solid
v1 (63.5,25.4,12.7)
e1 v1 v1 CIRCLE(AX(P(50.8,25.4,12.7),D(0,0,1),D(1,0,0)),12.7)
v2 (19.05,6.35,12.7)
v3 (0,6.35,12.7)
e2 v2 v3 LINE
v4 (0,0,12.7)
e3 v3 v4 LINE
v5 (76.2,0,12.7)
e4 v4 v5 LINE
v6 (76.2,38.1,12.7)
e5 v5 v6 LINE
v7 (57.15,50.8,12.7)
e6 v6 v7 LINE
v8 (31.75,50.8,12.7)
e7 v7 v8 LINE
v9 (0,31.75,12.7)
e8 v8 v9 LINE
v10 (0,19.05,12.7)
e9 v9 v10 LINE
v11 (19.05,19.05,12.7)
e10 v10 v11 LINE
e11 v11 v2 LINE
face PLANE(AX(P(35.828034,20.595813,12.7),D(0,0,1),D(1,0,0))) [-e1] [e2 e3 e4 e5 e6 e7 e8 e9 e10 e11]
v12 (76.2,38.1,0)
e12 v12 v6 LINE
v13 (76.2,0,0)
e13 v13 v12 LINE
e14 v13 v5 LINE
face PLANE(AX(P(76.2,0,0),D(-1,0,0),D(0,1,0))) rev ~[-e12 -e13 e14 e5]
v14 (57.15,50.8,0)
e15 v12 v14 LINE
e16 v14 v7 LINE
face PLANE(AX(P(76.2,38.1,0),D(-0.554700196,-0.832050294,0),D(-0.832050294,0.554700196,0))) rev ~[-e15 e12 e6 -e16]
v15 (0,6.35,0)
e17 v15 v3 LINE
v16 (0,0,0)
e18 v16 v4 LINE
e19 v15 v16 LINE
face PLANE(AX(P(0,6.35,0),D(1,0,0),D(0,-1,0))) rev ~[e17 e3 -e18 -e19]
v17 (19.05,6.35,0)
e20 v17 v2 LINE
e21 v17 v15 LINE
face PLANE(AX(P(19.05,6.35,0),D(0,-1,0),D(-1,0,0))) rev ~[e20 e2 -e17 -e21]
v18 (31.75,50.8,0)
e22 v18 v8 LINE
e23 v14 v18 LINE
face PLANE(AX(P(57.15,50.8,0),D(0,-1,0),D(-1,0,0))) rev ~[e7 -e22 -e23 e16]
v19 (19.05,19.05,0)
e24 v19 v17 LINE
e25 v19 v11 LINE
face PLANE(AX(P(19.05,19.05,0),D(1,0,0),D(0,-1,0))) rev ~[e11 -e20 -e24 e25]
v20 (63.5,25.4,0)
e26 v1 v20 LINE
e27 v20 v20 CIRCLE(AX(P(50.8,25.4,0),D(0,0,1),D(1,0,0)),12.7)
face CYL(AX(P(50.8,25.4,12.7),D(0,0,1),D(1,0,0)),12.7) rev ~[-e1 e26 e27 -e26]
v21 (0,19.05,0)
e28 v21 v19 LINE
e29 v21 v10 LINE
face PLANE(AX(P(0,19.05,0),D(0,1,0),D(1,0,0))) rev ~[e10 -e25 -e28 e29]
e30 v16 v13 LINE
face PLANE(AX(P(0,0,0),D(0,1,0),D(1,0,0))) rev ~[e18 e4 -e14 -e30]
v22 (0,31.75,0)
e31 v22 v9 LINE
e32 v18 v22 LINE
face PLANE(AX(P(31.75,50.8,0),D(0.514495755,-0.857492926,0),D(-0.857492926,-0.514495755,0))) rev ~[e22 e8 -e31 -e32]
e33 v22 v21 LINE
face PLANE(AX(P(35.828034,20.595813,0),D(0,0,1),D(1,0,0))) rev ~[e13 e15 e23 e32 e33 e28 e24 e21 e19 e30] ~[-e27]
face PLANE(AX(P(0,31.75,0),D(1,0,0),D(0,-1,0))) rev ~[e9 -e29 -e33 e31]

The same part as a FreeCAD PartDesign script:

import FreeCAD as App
import Part
import Sketcher
Q = App.Units.Quantity

doc = App.newDocument("Part")
params = doc.addObject("Spreadsheet::Sheet", "Params")
for row, (alias, value) in enumerate([
    ("sketch1_width", "3 in"),
    ("sketch1_width2", "1 in"),
    ("sketch1_height", "1.5 in"),
    ("sketch1_height2", "0.5 in"),
    ("sketch1_width3", "0.75 in"),
    ("pad1_length", "0.5 in"),
    ("sketch2_diameter", "1 in"),
], start=1):
    params.set(f"A{row}", alias)
    params.set(f"B{row}", "=" + value)
    params.setAlias(f"B{row}", alias)

body = doc.addObject("PartDesign::Body", "Body")

sketch1 = body.newObject("Sketcher::SketchObject", "Sketch")
sketch1.AttachmentSupport = (doc.getObject("XY_Plane"), [""])
sketch1.MapMode = "FlatFace"
sketch1.addGeometry([
    Part.LineSegment(App.Vector(0, 0, 0), App.Vector(76, 0, 0)),
    Part.LineSegment(App.Vector(76, 0, 0), App.Vector(76, 38, 0)),
    Part.LineSegment(App.Vector(76, 38, 0), App.Vector(57, 51, 0)),
    Part.LineSegment(App.Vector(57, 51, 0), App.Vector(32, 51, 0)),
    Part.LineSegment(App.Vector(32, 51, 0), App.Vector(0, 32, 0)),
    Part.LineSegment(App.Vector(0, 32, 0), App.Vector(0, 19, 0)),
    Part.LineSegment(App.Vector(0, 19, 0), App.Vector(19, 19, 0)),
    Part.LineSegment(App.Vector(19, 19, 0), App.Vector(19, 6, 0)),
    Part.LineSegment(App.Vector(19, 6, 0), App.Vector(0, 6, 0)),
    Part.LineSegment(App.Vector(0, 6, 0), App.Vector(0, 0, 0)),
], False)
sketch1.addConstraint([
    Sketcher.Constraint("Coincident", 0, 2, 1, 1),
    Sketcher.Constraint("Coincident", 1, 2, 2, 1),
    Sketcher.Constraint("Coincident", 2, 2, 3, 1),
    Sketcher.Constraint("Coincident", 3, 2, 4, 1),
    Sketcher.Constraint("Coincident", 4, 2, 5, 1),
    Sketcher.Constraint("Coincident", 5, 2, 6, 1),
    Sketcher.Constraint("Coincident", 6, 2, 7, 1),
    Sketcher.Constraint("Coincident", 7, 2, 8, 1),
    Sketcher.Constraint("Coincident", 8, 2, 9, 1),
    Sketcher.Constraint("Coincident", 9, 2, 0, 1),
    Sketcher.Constraint("Horizontal", 0),
    Sketcher.Constraint("Vertical", 1),
    Sketcher.Constraint("Horizontal", 3),
    Sketcher.Constraint("Vertical", 5),
    Sketcher.Constraint("Horizontal", 6),
    Sketcher.Constraint("Vertical", 7),
    Sketcher.Constraint("Horizontal", 8),
    Sketcher.Constraint("Vertical", 9),
    Sketcher.Constraint("Coincident", 9, 2, -1, 1),
    Sketcher.Constraint("PointOnObject", 4, 2, -2),
    Sketcher.Constraint("Equal", 5, 7),
    Sketcher.Constraint("DistanceX", 0, 1, 0, 2, Q("3 in")),
    Sketcher.Constraint("DistanceX", 3, 2, 3, 1, Q("1 in")),
    Sketcher.Constraint("DistanceY", 1, 1, 1, 2, Q("1.5 in")),
    Sketcher.Constraint("DistanceY", 5, 2, 5, 1, Q("0.5 in")),
    Sketcher.Constraint("DistanceY", -1, 1, 2, 2, Q("2 in")),
    Sketcher.Constraint("DistanceX", 6, 1, 6, 2, Q("0.75 in")),
    Sketcher.Constraint("DistanceY", 9, 2, 9, 1, Q("0.25 in")),
    Sketcher.Constraint("DistanceX", 6, 2, 3, 2, Q("0.5 in")),
])
sketch1.setExpression("Constraints[21]", "Params.sketch1_width")
sketch1.setExpression("Constraints[22]", "Params.sketch1_width2")
sketch1.setExpression("Constraints[23]", "Params.sketch1_height")
sketch1.setExpression("Constraints[24]", "Params.sketch1_height2")
sketch1.setExpression("Constraints[26]", "Params.sketch1_width3")
pad1 = body.newObject("PartDesign::Pad", "Pad")
pad1.Profile = sketch1
pad1.setExpression("Length", "Params.pad1_length")

sketch2 = body.newObject("Sketcher::SketchObject", "Sketch001")
sketch2.AttachmentSupport = (doc.getObject("XY_Plane"), [""])
sketch2.MapMode = "FlatFace"
sketch2.AttachmentOffset = App.Placement(App.Vector(0, 0, 0.5 * 25.4), App.Rotation())
sketch2.addGeometry(Part.Circle(App.Vector(51, 25, 0), App.Vector(0, 0, 1), 13), False)
sketch2.addConstraint([
    Sketcher.Constraint("Diameter", 0, Q("1 in")),
    Sketcher.Constraint("DistanceX", -1, 1, 0, 3, Q("2 in")),
    Sketcher.Constraint("DistanceY", -1, 1, 0, 3, Q("1 in")),
])
sketch2.setExpression("Constraints[0]", "Params.sketch2_diameter")
pocket1 = body.newObject("PartDesign::Pocket", "Pocket")
pocket1.Profile = sketch2
pocket1.Type = "ThroughAll"

doc.recompute()
